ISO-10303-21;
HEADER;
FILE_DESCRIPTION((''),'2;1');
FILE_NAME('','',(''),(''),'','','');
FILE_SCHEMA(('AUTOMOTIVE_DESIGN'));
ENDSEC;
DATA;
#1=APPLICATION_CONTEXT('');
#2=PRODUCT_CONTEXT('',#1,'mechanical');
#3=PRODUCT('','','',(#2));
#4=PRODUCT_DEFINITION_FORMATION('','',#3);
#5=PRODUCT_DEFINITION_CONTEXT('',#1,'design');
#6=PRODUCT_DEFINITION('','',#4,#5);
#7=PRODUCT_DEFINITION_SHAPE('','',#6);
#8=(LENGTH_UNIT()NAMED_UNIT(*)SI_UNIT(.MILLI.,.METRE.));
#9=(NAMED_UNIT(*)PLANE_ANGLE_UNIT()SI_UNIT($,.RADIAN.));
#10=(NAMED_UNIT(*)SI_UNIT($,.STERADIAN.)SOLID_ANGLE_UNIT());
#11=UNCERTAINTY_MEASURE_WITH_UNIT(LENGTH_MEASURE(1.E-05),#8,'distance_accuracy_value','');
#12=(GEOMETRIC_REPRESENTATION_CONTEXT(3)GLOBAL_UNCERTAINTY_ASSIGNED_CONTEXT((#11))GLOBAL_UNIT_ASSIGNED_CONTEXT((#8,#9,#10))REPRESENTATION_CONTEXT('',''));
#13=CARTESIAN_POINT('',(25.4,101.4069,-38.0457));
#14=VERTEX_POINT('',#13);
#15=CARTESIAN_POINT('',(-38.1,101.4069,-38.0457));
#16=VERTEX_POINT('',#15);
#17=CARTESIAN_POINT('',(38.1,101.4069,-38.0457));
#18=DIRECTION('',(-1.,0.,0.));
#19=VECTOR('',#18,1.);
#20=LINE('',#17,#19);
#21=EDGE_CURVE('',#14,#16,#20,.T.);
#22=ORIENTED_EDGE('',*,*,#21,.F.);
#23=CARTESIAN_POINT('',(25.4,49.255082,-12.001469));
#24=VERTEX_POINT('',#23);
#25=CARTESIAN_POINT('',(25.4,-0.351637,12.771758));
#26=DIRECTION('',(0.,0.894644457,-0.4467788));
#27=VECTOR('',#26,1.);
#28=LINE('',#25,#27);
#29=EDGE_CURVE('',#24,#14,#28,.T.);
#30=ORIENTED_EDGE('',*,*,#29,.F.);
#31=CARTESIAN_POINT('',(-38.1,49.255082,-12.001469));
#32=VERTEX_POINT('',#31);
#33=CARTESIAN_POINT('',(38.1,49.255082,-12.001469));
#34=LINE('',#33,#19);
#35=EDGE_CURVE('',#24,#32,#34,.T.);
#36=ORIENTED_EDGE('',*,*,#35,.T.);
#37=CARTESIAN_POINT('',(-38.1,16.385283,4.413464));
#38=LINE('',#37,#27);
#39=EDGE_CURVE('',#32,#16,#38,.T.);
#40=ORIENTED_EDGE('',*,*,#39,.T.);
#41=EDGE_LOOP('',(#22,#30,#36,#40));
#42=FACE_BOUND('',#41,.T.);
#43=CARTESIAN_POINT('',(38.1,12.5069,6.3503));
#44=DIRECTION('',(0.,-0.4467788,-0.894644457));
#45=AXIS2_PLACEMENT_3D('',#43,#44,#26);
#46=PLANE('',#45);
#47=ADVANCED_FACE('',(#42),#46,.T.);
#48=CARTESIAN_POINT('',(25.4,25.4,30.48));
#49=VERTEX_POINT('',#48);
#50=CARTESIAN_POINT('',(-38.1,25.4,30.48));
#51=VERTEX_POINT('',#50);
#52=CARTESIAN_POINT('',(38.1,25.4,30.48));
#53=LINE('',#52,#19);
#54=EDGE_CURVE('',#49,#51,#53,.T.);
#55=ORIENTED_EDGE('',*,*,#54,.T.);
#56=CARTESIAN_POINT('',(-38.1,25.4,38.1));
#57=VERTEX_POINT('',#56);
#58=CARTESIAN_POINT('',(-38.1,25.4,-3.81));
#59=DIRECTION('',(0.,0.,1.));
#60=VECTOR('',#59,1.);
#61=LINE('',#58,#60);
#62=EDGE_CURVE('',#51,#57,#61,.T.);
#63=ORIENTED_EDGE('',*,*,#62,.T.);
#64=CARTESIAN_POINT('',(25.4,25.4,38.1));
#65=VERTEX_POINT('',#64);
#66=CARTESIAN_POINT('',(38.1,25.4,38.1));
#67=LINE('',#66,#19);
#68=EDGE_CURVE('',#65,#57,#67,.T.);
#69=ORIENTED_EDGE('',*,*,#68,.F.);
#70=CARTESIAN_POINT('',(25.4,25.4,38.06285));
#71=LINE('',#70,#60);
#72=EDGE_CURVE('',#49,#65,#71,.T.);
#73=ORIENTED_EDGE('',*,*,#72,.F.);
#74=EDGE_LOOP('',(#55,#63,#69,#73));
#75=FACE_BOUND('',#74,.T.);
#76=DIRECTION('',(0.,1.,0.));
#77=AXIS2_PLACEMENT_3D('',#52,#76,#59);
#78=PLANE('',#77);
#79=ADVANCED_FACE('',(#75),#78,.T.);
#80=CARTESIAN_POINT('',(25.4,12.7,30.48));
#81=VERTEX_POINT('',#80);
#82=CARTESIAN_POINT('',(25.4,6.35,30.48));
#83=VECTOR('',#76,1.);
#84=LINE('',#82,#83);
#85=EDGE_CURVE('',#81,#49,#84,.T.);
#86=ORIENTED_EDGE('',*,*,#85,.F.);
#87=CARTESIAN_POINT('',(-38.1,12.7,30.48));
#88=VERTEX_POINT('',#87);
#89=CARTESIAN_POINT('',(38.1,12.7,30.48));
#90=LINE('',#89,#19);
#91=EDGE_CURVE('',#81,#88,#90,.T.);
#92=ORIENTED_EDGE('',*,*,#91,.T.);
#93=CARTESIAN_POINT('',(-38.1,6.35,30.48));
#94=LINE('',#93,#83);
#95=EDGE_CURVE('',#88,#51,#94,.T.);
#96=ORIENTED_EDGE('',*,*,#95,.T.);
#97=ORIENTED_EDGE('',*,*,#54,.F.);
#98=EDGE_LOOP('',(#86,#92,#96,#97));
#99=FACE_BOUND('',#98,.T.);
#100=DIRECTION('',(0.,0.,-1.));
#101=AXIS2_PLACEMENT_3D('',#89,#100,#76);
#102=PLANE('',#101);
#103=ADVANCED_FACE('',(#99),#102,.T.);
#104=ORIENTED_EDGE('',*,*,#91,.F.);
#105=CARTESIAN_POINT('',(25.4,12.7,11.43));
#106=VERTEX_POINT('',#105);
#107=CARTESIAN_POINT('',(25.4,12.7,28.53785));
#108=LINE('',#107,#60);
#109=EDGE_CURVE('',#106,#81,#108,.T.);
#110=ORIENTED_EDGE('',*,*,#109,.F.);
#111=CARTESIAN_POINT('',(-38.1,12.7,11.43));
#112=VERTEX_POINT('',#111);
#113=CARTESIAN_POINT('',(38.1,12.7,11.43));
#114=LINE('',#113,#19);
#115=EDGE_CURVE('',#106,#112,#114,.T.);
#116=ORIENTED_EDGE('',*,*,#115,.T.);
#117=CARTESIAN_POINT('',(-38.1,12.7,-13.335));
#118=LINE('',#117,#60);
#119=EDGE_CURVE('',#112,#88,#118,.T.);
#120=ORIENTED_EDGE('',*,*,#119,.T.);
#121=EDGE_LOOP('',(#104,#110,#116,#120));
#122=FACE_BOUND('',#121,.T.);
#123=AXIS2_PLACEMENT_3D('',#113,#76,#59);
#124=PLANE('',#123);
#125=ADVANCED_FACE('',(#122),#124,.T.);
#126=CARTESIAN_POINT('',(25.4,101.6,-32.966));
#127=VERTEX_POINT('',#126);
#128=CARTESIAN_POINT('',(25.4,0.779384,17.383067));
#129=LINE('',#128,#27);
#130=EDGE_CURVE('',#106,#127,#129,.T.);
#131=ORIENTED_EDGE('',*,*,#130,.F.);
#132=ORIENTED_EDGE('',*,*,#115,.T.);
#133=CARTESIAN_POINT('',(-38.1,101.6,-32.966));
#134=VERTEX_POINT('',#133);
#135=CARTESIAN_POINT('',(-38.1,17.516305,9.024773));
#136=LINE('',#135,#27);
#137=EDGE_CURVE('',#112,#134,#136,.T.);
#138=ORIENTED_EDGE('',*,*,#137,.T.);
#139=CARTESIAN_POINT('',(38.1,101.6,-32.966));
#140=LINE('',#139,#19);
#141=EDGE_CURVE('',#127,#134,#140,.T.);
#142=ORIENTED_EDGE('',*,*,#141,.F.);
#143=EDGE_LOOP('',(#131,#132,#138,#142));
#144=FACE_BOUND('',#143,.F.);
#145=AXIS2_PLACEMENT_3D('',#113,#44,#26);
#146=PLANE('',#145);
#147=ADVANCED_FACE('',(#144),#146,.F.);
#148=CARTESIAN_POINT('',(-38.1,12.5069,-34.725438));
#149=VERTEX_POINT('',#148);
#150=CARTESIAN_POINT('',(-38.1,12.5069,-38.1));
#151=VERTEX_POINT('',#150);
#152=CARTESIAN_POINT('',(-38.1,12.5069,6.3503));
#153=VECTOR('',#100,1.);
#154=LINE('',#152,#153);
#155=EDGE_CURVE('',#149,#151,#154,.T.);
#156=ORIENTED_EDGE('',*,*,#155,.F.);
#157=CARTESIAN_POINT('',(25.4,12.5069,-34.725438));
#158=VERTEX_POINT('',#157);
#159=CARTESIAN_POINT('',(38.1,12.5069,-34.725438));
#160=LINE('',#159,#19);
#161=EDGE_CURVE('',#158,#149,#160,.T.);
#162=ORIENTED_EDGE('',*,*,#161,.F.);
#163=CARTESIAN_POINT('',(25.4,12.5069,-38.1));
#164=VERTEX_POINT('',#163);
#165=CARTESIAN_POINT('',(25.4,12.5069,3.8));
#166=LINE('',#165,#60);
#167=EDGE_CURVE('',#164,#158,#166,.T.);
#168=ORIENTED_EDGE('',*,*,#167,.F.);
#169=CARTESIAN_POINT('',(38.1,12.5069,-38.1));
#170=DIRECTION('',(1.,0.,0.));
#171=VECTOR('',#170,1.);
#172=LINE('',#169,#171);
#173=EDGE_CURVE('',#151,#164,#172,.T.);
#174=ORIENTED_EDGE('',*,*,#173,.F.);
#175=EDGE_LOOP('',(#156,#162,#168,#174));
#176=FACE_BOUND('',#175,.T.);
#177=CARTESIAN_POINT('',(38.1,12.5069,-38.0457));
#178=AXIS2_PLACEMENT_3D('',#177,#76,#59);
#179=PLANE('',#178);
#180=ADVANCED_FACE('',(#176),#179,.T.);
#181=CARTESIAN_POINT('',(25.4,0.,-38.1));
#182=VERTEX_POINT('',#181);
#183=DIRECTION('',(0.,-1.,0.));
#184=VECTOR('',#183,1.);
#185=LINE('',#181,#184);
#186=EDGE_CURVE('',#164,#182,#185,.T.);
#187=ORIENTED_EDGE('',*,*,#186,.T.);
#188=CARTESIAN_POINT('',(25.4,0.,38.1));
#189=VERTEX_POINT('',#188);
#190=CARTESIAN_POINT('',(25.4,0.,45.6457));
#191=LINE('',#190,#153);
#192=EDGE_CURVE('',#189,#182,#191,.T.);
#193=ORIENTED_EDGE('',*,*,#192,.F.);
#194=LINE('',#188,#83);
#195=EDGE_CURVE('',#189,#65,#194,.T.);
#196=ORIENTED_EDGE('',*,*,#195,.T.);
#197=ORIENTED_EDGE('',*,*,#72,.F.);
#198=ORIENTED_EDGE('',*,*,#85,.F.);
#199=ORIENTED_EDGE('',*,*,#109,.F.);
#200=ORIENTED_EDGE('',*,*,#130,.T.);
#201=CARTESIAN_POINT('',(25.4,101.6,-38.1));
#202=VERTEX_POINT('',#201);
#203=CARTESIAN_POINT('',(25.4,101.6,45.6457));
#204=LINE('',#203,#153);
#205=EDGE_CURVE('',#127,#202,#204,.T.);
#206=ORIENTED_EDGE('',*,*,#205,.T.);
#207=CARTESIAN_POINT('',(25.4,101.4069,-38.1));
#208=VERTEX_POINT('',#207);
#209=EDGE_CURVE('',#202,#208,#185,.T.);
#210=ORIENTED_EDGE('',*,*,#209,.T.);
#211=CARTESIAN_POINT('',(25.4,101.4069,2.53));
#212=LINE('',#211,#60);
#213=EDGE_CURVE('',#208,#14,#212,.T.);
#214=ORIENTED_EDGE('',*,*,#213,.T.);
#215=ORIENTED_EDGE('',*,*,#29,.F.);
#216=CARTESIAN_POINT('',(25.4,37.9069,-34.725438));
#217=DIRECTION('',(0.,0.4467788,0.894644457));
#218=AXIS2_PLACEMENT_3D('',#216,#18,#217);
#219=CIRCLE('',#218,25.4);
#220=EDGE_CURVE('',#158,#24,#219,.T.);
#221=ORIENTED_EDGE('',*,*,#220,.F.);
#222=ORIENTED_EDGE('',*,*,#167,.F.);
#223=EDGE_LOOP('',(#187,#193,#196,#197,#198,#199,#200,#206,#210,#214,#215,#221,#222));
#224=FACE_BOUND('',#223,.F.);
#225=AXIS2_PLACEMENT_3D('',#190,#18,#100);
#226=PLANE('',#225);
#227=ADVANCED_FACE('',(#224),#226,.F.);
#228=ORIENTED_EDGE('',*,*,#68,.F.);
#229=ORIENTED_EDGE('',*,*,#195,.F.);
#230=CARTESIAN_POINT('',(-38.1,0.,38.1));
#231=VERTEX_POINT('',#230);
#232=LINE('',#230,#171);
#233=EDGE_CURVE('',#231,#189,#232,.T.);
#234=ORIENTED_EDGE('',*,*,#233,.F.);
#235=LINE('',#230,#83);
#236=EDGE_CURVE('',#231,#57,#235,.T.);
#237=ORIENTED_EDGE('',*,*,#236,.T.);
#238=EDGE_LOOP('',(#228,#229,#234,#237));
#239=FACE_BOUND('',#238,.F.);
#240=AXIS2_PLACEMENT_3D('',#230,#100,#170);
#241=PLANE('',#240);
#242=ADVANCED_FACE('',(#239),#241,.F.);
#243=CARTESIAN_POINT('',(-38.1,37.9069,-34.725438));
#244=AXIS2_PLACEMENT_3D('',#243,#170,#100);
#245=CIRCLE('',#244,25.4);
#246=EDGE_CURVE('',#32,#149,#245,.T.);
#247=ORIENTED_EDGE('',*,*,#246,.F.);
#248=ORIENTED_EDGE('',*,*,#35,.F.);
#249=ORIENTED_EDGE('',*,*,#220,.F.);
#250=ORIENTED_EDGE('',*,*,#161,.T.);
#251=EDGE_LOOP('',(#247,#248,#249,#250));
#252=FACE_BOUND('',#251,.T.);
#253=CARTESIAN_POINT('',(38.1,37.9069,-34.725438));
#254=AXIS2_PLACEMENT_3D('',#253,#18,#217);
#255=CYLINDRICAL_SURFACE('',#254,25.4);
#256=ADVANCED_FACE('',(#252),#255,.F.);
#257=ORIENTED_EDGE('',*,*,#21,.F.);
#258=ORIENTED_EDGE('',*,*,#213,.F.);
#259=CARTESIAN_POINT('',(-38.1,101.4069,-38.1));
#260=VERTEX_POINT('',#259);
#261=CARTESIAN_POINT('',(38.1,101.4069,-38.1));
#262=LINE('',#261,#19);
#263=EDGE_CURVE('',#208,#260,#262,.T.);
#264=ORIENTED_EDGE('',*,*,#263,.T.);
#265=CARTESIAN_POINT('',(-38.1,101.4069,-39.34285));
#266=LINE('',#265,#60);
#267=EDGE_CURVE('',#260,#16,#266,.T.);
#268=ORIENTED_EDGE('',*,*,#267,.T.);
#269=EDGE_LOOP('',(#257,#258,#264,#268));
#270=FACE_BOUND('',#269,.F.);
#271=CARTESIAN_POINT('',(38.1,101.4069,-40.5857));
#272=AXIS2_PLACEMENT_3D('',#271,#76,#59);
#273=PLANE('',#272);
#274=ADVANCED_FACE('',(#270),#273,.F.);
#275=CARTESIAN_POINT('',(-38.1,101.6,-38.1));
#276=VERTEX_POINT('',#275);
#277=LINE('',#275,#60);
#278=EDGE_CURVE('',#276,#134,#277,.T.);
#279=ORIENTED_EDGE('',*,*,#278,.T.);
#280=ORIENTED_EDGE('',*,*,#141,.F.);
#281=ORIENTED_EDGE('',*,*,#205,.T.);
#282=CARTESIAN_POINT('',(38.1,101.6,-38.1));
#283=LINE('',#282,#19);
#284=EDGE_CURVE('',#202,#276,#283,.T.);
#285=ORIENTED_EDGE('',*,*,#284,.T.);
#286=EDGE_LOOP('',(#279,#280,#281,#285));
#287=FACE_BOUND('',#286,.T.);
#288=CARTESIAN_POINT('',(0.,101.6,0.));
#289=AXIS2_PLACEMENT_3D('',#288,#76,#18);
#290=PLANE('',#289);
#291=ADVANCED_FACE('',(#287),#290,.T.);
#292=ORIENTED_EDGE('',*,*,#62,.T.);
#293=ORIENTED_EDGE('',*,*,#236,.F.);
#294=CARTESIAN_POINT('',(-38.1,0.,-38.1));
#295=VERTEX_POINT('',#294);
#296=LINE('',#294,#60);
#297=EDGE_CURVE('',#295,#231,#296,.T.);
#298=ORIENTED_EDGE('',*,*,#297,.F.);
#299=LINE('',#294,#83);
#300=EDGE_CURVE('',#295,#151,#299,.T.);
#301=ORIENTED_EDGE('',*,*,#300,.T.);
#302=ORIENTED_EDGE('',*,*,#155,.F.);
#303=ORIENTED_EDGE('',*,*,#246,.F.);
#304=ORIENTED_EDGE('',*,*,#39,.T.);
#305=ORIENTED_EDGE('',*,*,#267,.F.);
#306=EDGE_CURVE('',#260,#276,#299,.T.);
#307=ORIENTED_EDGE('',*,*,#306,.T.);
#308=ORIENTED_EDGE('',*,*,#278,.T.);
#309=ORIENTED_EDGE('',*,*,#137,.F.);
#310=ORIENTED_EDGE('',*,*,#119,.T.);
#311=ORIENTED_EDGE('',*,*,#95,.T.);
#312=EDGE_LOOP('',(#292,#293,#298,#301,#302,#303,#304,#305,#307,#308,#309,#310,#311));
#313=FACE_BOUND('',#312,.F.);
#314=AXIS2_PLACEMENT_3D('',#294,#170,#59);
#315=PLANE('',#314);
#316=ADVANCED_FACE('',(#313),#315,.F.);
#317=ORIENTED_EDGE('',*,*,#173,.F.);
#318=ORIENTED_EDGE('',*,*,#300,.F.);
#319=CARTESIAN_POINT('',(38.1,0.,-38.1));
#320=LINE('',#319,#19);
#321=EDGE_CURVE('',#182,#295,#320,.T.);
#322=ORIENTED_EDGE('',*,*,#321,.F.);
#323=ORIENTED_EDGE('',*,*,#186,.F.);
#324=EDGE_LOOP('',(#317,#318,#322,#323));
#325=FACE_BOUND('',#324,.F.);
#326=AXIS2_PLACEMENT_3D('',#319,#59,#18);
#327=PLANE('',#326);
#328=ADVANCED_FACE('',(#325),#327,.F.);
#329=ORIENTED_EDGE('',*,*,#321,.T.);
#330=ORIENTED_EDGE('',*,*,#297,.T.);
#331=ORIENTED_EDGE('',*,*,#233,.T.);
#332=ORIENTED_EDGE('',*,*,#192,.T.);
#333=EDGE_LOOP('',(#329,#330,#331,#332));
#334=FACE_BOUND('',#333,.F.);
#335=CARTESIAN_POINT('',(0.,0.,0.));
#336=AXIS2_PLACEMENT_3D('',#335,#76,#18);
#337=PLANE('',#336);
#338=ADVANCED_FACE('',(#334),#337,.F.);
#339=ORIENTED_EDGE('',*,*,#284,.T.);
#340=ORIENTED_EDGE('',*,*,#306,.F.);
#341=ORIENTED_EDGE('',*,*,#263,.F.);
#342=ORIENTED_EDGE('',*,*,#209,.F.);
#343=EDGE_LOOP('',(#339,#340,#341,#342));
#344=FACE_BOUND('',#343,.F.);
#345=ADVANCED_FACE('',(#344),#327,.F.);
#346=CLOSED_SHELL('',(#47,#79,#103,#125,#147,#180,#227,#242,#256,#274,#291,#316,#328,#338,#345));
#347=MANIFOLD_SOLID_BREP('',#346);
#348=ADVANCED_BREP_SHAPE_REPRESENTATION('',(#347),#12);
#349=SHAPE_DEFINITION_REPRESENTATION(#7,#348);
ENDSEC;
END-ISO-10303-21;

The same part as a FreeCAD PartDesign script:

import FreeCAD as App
import Part
import Sketcher
Q = App.Units.Quantity


def edges_at(feature, points):
    """Names of the edges that pass closest to the given points."""
    edges = feature.Shape.Edges
    near = lambda p: min(range(len(edges)), key=lambda i: edges[i].distToShape(Part.Vertex(*p))[0])
    return sorted({f"Edge{near(p) + 1}" for p in points})

doc = App.newDocument("Part")
params = doc.addObject("Spreadsheet::Sheet", "Params")
for row, (alias, value) in enumerate([
    ("sketch1_width", "3 in"),
    ("pad1_length", "4 in"),
    ("sketch2_width", "3.5 in"),
    ("sketch2_height", "0.1 in"),
    ("pocket1_length", "4 in"),
    ("fillet_radius", "1 in"),
    ("sketch3_height", "0.3 in"),
    ("sketch3_height2", "0.75 in"),
    ("sketch3_width", "0.5 in"),
    ("pocket2_length", "4 in"),
    ("sketch4_width", "1 in"),
    ("pocket3_length", "4 in"),
], start=1):
    params.set(f"A{row}", alias)
    params.set(f"B{row}", "=" + value)
    params.setAlias(f"B{row}", alias)

body = doc.addObject("PartDesign::Body", "Body")

# Sketch on XZ plane
sketch1 = body.newObject("Sketcher::SketchObject", "Sketch")
sketch1.AttachmentSupport = (doc.getObject("XZ_Plane"), [""])
sketch1.MapMode = "FlatFace"
sketch1.addGeometry([
    Part.LineSegment(App.Vector(-38.1, -38.1, 0), App.Vector(-38.1, 38.1, 0)),
    Part.LineSegment(App.Vector(-38.1, 38.1, 0), App.Vector(38.1, 38.1, 0)),
    Part.LineSegment(App.Vector(38.1, 38.1, 0), App.Vector(38.1, -38.1, 0)),
    Part.LineSegment(App.Vector(38.1, -38.1, 0), App.Vector(-38.1, -38.1, 0)),
], False)
sketch1.addConstraint([
    Sketcher.Constraint("Coincident", 0, 2, 1, 1),
    Sketcher.Constraint("Coincident", 1, 2, 2, 1),
    Sketcher.Constraint("Coincident", 2, 2, 3, 1),
    Sketcher.Constraint("Coincident", 3, 2, 0, 1),
    Sketcher.Constraint("Vertical", 0),
    Sketcher.Constraint("Horizontal", 1),
    Sketcher.Constraint("Vertical", 2),
    Sketcher.Constraint("Horizontal", 3),
    Sketcher.Constraint("Symmetric", 0, 2, 2, 2, -1, 1),
    Sketcher.Constraint("Equal", 3, 0),
    Sketcher.Constraint("DistanceX", 1, 1, 1, 2, Q("3 in")),
])
sketch1.setExpression("Constraints[10]", "Params.sketch1_width")
pad1 = body.newObject("PartDesign::Pad", "Pad")
pad1.Profile = sketch1
pad1.setExpression("Length", "Params.pad1_length")
pad1.Reversed = True

# Sketch on YZ plane
sketch2 = body.newObject("Sketcher::SketchObject", "Sketch001")
sketch2.AttachmentSupport = (doc.getObject("YZ_Plane"), [""])
sketch2.MapMode = "FlatFace"
sketch2.AttachmentOffset = App.Placement(App.Vector(0, 0, 1.5 * 25.4), App.Rotation())
sketch2.addGeometry([
    Part.LineSegment(App.Vector(101.4069, -38.0457, 0), App.Vector(12.5069, 6.3503, 0)),
    Part.LineSegment(App.Vector(12.5069, 6.3503, 0), App.Vector(12.5069, -40.5857, 0)),
    Part.LineSegment(App.Vector(12.5069, -40.5857, 0), App.Vector(101.4069, -40.5857, 0)),
    Part.LineSegment(App.Vector(101.4069, -40.5857, 0), App.Vector(101.4069, -38.0457, 0)),
], False)
sketch2.addConstraint([
    Sketcher.Constraint("Coincident", 0, 2, 1, 1),
    Sketcher.Constraint("Coincident", 1, 2, 2, 1),
    Sketcher.Constraint("Coincident", 2, 2, 3, 1),
    Sketcher.Constraint("Coincident", 3, 2, 0, 1),
    Sketcher.Constraint("Vertical", 1),
    Sketcher.Constraint("Horizontal", 2),
    Sketcher.Constraint("Vertical", 3),
    Sketcher.Constraint("DistanceX", 2, 1, 2, 2, Q("3.5 in")),
    Sketcher.Constraint("DistanceY", 3, 1, 3, 2, Q("0.1 in")),
    Sketcher.Constraint("DistanceY", -1, 1, 0, 2, Q("0.25 in")),
    Sketcher.Constraint("DistanceY", 1, 2, 1, 1, Q("46.936 mm")),
    Sketcher.Constraint("DistanceX", -1, 1, 0, 2, Q("0.4924 in")),
])
sketch2.setExpression("Constraints[7]", "Params.sketch2_width")
sketch2.setExpression("Constraints[8]", "Params.sketch2_height")
pocket1 = body.newObject("PartDesign::Pocket", "Pocket")
pocket1.Profile = sketch2
pocket1.setExpression("Length", "Params.pocket1_length")
doc.recompute()

fillet = body.newObject("PartDesign::Fillet", "Fillet")
fillet.Base = (pocket1, edges_at(pocket1, [(0, 12.507, 6.35)]))
fillet.setExpression("Radius", "Params.fillet_radius")

# Sketch on YZ plane
sketch3 = body.newObject("Sketcher::SketchObject", "Sketch002")
sketch3.AttachmentSupport = (doc.getObject("YZ_Plane"), [""])
sketch3.MapMode = "FlatFace"
sketch3.AttachmentOffset = App.Placement(App.Vector(0, 0, 1.5 * 25.4), App.Rotation())
sketch3.addGeometry([
    Part.LineSegment(App.Vector(25.4, 38.1, 0), App.Vector(25.4, 30.48, 0)),  # 0
    Part.LineSegment(App.Vector(25.4, 30.48, 0), App.Vector(12.7, 30.48, 0)),  # 1
    Part.LineSegment(App.Vector(12.7, 30.48, 0), App.Vector(12.7, 11.43, 0)),  # 2
    Part.LineSegment(App.Vector(12.7, 11.43, 0), App.Vector(101.6, -32.966, 0)),  # 3
    Part.LineSegment(App.Vector(101.6, -32.966, 0), App.Vector(103.693, 40.1413, 0)),  # 4
    Part.LineSegment(App.Vector(103.693, 40.1413, 0), App.Vector(25.4, 38.1, 0)),  # 5
], False)
sketch3.addConstraint([
    Sketcher.Constraint("Coincident", 0, 2, 1, 1),
    Sketcher.Constraint("Coincident", 1, 2, 2, 1),
    Sketcher.Constraint("Coincident", 2, 2, 3, 1),
    Sketcher.Constraint("Coincident", 3, 2, 4, 1),
    Sketcher.Constraint("Coincident", 4, 2, 5, 1),
    Sketcher.Constraint("Coincident", 5, 2, 0, 1),
    Sketcher.Constraint("Vertical", 0),
    Sketcher.Constraint("Horizontal", 1),
    Sketcher.Constraint("Vertical", 2),
    Sketcher.Constraint("DistanceY", 0, 2, 0, 1, Q("0.3 in")),
    Sketcher.Constraint("DistanceY", 2, 2, 2, 1, Q("0.75 in")),
    Sketcher.Constraint("DistanceX", 1, 2, 1, 1, Q("0.5 in")),
    Sketcher.Constraint("DistanceX", -1, 1, 0, 2, Q("1 in")),
    Sketcher.Constraint("DistanceX", -1, 1, 3, 2, Q("4 in")),
    Sketcher.Constraint("DistanceY", -1, 1, 0, 2, Q("1.2 in")),
    Sketcher.Constraint("DistanceX", -1, 1, 4, 2, Q("4.0824 in")),
    Sketcher.Constraint("Distance", 3, Q("99.369 mm")),
    Sketcher.Constraint("Distance", 4, Q("73.1373 mm")),
])
sketch3.setExpression("Constraints[9]", "Params.sketch3_height")
sketch3.setExpression("Constraints[10]", "Params.sketch3_height2")
sketch3.setExpression("Constraints[11]", "Params.sketch3_width")
pocket2 = body.newObject("PartDesign::Pocket", "Pocket001")
pocket2.Profile = sketch3
pocket2.setExpression("Length", "Params.pocket2_length")

# Sketch on XZ plane
sketch4 = body.newObject("Sketcher::SketchObject", "Sketch003")
sketch4.AttachmentSupport = (doc.getObject("XZ_Plane"), [""])
sketch4.MapMode = "FlatFace"
sketch4.addGeometry([
    Part.LineSegment(App.Vector(50.8, -45.6457, 0), App.Vector(50.8, 45.6457, 0)),
    Part.LineSegment(App.Vector(50.8, 45.6457, 0), App.Vector(25.4, 45.6457, 0)),
    Part.LineSegment(App.Vector(25.4, 45.6457, 0), App.Vector(25.4, -45.6457, 0)),
    Part.LineSegment(App.Vector(25.4, -45.6457, 0), App.Vector(50.8, -45.6457, 0)),
], False)
sketch4.addConstraint([
    Sketcher.Constraint("Coincident", 0, 2, 1, 1),
    Sketcher.Constraint("Coincident", 1, 2, 2, 1),
    Sketcher.Constraint("Coincident", 2, 2, 3, 1),
    Sketcher.Constraint("Coincident", 3, 2, 0, 1),
    Sketcher.Constraint("Vertical", 0),
    Sketcher.Constraint("Horizontal", 1),
    Sketcher.Constraint("Vertical", 2),
    Sketcher.Constraint("Horizontal", 3),
    Sketcher.Constraint("DistanceX", 1, 2, 1, 1, Q("1 in")),
    Sketcher.Constraint("DistanceX", -1, 1, 1, 2, Q("1 in")),
    Sketcher.Constraint("DistanceY", 0, 1, 0, 2, Q("91.2914 mm")),
    Sketcher.Constraint("DistanceY", -1, 1, 0, 2, Q("45.6457 mm")),
])
sketch4.setExpression("Constraints[8]", "Params.sketch4_width")
pocket3 = body.newObject("PartDesign::Pocket", "Pocket002")
pocket3.Profile = sketch4
pocket3.setExpression("Length", "Params.pocket3_length")

doc.recompute()
